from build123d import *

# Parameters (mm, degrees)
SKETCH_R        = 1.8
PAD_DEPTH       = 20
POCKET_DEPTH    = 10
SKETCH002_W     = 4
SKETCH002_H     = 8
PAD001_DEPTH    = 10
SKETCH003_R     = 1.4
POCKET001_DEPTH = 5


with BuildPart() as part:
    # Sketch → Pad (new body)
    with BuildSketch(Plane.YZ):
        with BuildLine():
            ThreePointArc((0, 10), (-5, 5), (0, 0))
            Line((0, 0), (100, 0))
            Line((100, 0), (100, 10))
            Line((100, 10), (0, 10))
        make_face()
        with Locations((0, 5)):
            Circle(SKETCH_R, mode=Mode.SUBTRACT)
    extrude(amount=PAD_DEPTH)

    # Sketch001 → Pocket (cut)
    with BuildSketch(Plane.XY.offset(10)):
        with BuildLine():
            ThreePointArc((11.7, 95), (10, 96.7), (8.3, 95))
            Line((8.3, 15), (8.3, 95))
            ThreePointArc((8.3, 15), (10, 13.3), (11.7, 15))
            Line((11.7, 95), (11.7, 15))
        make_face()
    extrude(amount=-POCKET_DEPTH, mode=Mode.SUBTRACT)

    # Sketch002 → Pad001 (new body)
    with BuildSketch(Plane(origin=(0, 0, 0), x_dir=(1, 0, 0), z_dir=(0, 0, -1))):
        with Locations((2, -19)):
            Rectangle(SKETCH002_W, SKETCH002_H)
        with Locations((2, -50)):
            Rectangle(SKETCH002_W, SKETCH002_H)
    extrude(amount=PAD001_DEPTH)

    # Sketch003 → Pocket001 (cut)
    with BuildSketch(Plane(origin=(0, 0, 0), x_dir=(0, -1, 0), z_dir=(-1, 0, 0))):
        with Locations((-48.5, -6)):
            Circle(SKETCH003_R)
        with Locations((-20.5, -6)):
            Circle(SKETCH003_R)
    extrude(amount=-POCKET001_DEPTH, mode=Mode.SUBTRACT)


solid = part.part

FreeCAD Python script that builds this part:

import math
import FreeCAD as App
import Part
import Sketcher
Q = App.Units.Quantity


def add_polygon(sketch, points):
    """Adds a closed chain of lines whose ends are joined by coincident constraints."""
    first, n = sketch.GeometryCount, len(points)
    for a, b in zip(points, points[1:] + points[:1]):
        sketch.addGeometry(Part.LineSegment(App.Vector(*a, 0), App.Vector(*b, 0)), False)
    for i in range(n):
        sketch.addConstraint(Sketcher.Constraint("Coincident", first + i, 2, first + (i + 1) % n, 1))

doc = App.newDocument("Part")
body = doc.addObject("PartDesign::Body", "Body")

# Sketch on YZ plane
sketch1 = body.newObject("Sketcher::SketchObject", "Sketch")
sketch1.AttachmentSupport = (doc.getObject("YZ_Plane"), [""])
sketch1.MapMode = "FlatFace"
sketch1.addGeometry(Part.ArcOfCircle(Part.Circle(App.Vector(0, 5, 0), App.Vector(0, 0, 1), 5), math.radians(90), math.radians(270)), False)
sketch1.addGeometry(Part.LineSegment(App.Vector(0, 0, 0), App.Vector(100, 0, 0)), False)
sketch1.addGeometry(Part.LineSegment(App.Vector(100, 0, 0), App.Vector(100, 10, 0)), False)
sketch1.addGeometry(Part.LineSegment(App.Vector(100, 10, 0), App.Vector(0, 10, 0)), False)
sketch1.addGeometry(Part.Circle(App.Vector(0, 5, 0), App.Vector(0, 0, 1), 1.8), False)
sketch1.addConstraint(Sketcher.Constraint("Tangent", 0, 2, 1, 1))
sketch1.addConstraint(Sketcher.Constraint("Coincident", 1, 2, 2, 1))
sketch1.addConstraint(Sketcher.Constraint("Coincident", 2, 2, 3, 1))
sketch1.addConstraint(Sketcher.Constraint("Tangent", 3, 2, 0, 1))
sketch1.addConstraint(Sketcher.Constraint("Horizontal", 1))
sketch1.addConstraint(Sketcher.Constraint("Vertical", 2))
sketch1.addConstraint(Sketcher.Constraint("Horizontal", 3))
sketch1.addConstraint(Sketcher.Constraint("Coincident", 0, 2, -1, 1))
sketch1.addConstraint(Sketcher.Constraint("Coincident", 4, 3, 0, 3))
sketch1.addConstraint(Sketcher.Constraint("Radius", 0, Q("5 mm")))
sketch1.addConstraint(Sketcher.Constraint("Diameter", 4, Q("3.6 mm")))
sketch1.addConstraint(Sketcher.Constraint("DistanceX", 1, 1, 1, 2, Q("100 mm")))
pad1 = body.newObject("PartDesign::Pad", "Pad")
pad1.Profile = sketch1
pad1.Length = 20

# Sketch on XY plane
sketch2 = body.newObject("Sketcher::SketchObject", "Sketch001")
sketch2.AttachmentSupport = (doc.getObject("XY_Plane"), [""])
sketch2.MapMode = "FlatFace"
sketch2.AttachmentOffset = App.Placement(App.Vector(0, 0, 10), App.Rotation())
sketch2.addGeometry(Part.ArcOfCircle(Part.Circle(App.Vector(10, 95, 0), App.Vector(0, 0, 1), 1.7), math.radians(0), math.radians(180)), False)
sketch2.addGeometry(Part.LineSegment(App.Vector(8.3, 95, 0), App.Vector(8.3, 15, 0)), False)
sketch2.addGeometry(Part.ArcOfCircle(Part.Circle(App.Vector(10, 15, 0), App.Vector(0, 0, 1), 1.7), math.radians(180), math.radians(360)), False)
sketch2.addGeometry(Part.LineSegment(App.Vector(11.7, 15, 0), App.Vector(11.7, 95, 0)), False)
sketch2.addConstraint(Sketcher.Constraint("Tangent", 0, 2, 1, 1))
sketch2.addConstraint(Sketcher.Constraint("Tangent", 1, 2, 2, 1))
sketch2.addConstraint(Sketcher.Constraint("Tangent", 2, 2, 3, 1))
sketch2.addConstraint(Sketcher.Constraint("Tangent", 3, 2, 0, 1))
sketch2.addConstraint(Sketcher.Constraint("Vertical", 1))
sketch2.addConstraint(Sketcher.Constraint("Vertical", 3))
sketch2.addConstraint(Sketcher.Constraint("Radius", 0, Q("1.7 mm")))
sketch2.addConstraint(Sketcher.Constraint("DistanceY", 1, 2, 1, 1, Q("80 mm")))
sketch2.addConstraint(Sketcher.Constraint("DistanceX", -1, 1, 0, 3, Q("10 mm")))
sketch2.addConstraint(Sketcher.Constraint("DistanceY", -1, 1, 0, 3, Q("95 mm")))
pocket1 = body.newObject("PartDesign::Pocket", "Pocket")
pocket1.Profile = sketch2
pocket1.Length = 10

# Sketch on XY plane
sketch3 = body.newObject("Sketcher::SketchObject", "Sketch002")
sketch3.AttachmentSupport = (doc.getObject("XY_Plane"), [""])
sketch3.MapMode = "FlatFace"
add_polygon(sketch3, [(0, 15), (0, 23), (4, 23), (4, 15)])  # lines 0-3
add_polygon(sketch3, [(0, 46), (0, 54), (4, 54), (4, 46)])  # lines 4-7
sketch3.addConstraint(Sketcher.Constraint("Vertical", 0))
sketch3.addConstraint(Sketcher.Constraint("Horizontal", 1))
sketch3.addConstraint(Sketcher.Constraint("Vertical", 2))
sketch3.addConstraint(Sketcher.Constraint("Horizontal", 3))
sketch3.addConstraint(Sketcher.Constraint("Vertical", 4))
sketch3.addConstraint(Sketcher.Constraint("Horizontal", 5))
sketch3.addConstraint(Sketcher.Constraint("Vertical", 6))
sketch3.addConstraint(Sketcher.Constraint("Horizontal", 7))
sketch3.addConstraint(Sketcher.Constraint("PointOnObject", 0, 2, -2))
sketch3.addConstraint(Sketcher.Constraint("PointOnObject", 4, 2, -2))
sketch3.addConstraint(Sketcher.Constraint("Vertical", 2, 2, 5, 2))
sketch3.addConstraint(Sketcher.Constraint("Equal", 2, 4))
sketch3.addConstraint(Sketcher.Constraint("DistanceX", 1, 1, 1, 2, Q("4 mm")))
sketch3.addConstraint(Sketcher.Constraint("DistanceY", 0, 1, 0, 2, Q("8 mm")))
sketch3.addConstraint(Sketcher.Constraint("DistanceY", -1, 1, 0, 2, Q("23 mm")))
sketch3.addConstraint(Sketcher.Constraint("DistanceY", -1, 1, 4, 2, Q("54 mm")))
pad2 = body.newObject("PartDesign::Pad", "Pad001")
pad2.Profile = sketch3
pad2.Length = 10
pad2.Reversed = True

# Sketch on YZ plane
sketch4 = body.newObject("Sketcher::SketchObject", "Sketch003")
sketch4.AttachmentSupport = (doc.getObject("YZ_Plane"), [""])
sketch4.MapMode = "FlatFace"
sketch4.addGeometry(Part.Circle(App.Vector(48.5, -6, 0), App.Vector(0, 0, 1), 1.4), False)
sketch4.addGeometry(Part.Circle(App.Vector(20.5, -6, 0), App.Vector(0, 0, 1), 1.4), False)
sketch4.addConstraint(Sketcher.Constraint("Equal", 0, 1))
sketch4.addConstraint(Sketcher.Constraint("Horizontal", 0, 3, 1, 3))
sketch4.addConstraint(Sketcher.Constraint("Diameter", 0, Q("2.8 mm")))
sketch4.addConstraint(Sketcher.Constraint("DistanceY", 0, 3, -1, 1, Q("6 mm")))
sketch4.addConstraint(Sketcher.Constraint("DistanceX", 1, 3, 0, 3, Q("28 mm")))
sketch4.addConstraint(Sketcher.Constraint("DistanceX", -1, 1, 0, 3, Q("48.5 mm")))
pocket2 = body.newObject("PartDesign::Pocket", "Pocket001")
pocket2.Profile = sketch4
pocket2.Length = 5
pocket2.Reversed = True

doc.recompute()
